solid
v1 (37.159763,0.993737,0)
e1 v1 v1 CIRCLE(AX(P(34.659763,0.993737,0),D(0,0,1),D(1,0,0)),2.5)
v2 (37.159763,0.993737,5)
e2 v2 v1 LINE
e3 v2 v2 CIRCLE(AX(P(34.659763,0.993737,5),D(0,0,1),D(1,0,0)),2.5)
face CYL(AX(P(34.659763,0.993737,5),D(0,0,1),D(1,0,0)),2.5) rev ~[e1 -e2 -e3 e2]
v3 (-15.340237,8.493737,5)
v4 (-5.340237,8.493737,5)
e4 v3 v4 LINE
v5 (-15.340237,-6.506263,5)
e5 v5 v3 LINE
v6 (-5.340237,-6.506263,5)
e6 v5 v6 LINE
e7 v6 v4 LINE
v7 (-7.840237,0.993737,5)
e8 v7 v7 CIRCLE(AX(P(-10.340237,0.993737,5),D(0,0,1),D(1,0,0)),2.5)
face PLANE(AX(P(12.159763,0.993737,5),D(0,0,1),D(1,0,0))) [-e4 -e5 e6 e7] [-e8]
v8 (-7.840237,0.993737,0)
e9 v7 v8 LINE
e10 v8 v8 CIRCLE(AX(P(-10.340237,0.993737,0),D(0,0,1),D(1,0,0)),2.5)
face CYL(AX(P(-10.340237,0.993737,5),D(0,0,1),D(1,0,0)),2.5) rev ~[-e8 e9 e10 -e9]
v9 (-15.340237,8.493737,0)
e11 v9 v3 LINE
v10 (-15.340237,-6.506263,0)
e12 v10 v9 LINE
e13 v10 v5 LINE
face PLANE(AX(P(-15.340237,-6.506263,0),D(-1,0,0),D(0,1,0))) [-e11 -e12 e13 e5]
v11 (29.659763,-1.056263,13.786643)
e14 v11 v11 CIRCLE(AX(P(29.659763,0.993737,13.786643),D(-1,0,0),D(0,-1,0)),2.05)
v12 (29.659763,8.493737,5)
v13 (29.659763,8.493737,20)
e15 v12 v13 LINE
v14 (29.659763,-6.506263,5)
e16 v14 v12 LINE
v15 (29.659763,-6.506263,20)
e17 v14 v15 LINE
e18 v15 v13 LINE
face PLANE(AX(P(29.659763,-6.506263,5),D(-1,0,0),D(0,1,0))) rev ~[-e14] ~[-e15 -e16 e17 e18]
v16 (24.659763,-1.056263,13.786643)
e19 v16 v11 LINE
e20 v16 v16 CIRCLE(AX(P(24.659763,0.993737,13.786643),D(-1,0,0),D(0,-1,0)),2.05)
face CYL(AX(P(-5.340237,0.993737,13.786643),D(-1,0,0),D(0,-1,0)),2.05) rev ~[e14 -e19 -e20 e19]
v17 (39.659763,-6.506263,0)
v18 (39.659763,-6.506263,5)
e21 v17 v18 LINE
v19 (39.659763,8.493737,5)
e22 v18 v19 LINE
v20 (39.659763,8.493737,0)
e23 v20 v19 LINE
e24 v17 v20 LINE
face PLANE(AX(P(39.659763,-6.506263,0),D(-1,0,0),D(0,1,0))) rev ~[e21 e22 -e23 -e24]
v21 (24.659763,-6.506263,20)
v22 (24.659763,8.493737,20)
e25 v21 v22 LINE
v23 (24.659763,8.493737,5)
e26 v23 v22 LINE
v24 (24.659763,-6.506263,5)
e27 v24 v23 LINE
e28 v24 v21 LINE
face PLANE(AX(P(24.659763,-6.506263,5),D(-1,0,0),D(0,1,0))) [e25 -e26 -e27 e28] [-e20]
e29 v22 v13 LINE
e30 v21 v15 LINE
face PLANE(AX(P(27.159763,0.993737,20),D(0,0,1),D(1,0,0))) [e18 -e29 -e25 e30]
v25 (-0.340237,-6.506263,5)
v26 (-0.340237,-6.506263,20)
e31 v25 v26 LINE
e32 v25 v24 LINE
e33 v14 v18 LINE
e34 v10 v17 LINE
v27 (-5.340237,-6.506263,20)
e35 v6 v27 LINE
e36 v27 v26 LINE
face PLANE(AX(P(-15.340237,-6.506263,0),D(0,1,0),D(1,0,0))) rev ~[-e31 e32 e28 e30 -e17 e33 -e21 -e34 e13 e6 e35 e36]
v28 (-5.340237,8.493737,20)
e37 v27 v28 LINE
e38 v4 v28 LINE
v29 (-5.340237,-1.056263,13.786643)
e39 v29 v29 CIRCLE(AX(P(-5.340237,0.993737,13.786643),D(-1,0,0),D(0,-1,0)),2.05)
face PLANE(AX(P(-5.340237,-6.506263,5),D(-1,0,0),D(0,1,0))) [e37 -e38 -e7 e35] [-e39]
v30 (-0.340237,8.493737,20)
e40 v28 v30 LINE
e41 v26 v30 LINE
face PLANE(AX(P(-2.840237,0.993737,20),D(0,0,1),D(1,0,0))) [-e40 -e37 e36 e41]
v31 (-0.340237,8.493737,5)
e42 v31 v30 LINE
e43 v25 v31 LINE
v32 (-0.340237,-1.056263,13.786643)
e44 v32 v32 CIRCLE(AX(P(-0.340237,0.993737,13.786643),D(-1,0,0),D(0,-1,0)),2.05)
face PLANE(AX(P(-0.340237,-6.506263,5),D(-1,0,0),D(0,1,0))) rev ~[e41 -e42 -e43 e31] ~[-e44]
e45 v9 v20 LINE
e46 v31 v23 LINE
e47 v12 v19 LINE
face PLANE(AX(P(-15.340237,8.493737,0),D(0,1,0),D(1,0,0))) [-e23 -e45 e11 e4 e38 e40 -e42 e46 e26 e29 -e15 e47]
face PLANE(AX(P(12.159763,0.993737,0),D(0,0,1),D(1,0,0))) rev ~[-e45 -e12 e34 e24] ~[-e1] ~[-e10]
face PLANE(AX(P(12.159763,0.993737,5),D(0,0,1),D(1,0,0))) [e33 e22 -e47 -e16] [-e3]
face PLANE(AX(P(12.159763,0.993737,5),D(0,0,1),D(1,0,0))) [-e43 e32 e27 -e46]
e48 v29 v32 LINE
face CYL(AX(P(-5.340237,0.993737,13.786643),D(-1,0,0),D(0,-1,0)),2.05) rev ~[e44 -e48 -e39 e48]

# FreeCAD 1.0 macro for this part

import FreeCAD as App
import Part
import Sketcher
Q = App.Units.Quantity


def add_polygon(sketch, points):
    """Adds a closed chain of lines whose ends are joined by coincident constraints."""
    first, n = sketch.GeometryCount, len(points)
    for a, b in zip(points, points[1:] + points[:1]):
        sketch.addGeometry(Part.LineSegment(App.Vector(*a, 0), App.Vector(*b, 0)), False)
    for i in range(n):
        sketch.addConstraint(Sketcher.Constraint("Coincident", first + i, 2, first + (i + 1) % n, 1))

doc = App.newDocument("Part")
body = doc.addObject("PartDesign::Body", "Body")

sketch1 = body.newObject("Sketcher::SketchObject", "Sketch")
sketch1.AttachmentSupport = (doc.getObject("XY_Plane"), [""])
sketch1.MapMode = "FlatFace"
add_polygon(sketch1, [(-15.340237, 8.493737), (-15.340237, -6.506263), (39.659763, -6.506263), (39.659763, 8.493737)])
sketch1.addConstraint([
    Sketcher.Constraint("Vertical", 0),
    Sketcher.Constraint("Horizontal", 1),
    Sketcher.Constraint("Vertical", 2),
    Sketcher.Constraint("Horizontal", 3),
    Sketcher.Constraint("DistanceX", 1, 1, 1, 2, Q("55 mm")),
    Sketcher.Constraint("DistanceY", 0, 2, 0, 1, Q("15 mm")),
    Sketcher.Constraint("DistanceX", 0, 2, -1, 1, Q("15.340237 mm")),
    Sketcher.Constraint("DistanceY", 0, 2, -1, 1, Q("6.506263 mm")),
])
pad1 = body.newObject("PartDesign::Pad", "Pad")
pad1.Profile = sketch1
pad1.Length = 5

sketch2 = body.newObject("Sketcher::SketchObject", "Sketch001")
sketch2.AttachmentSupport = (doc.getObject("XY_Plane"), [""])
sketch2.MapMode = "FlatFace"
sketch2.AttachmentOffset = App.Placement(App.Vector(0, 0, 5), App.Rotation())
add_polygon(sketch2, [(-5.340237, 8.493737), (-5.340237, -6.506263), (-0.340237, -6.506263), (-0.340237, 8.493737)])
add_polygon(sketch2, [(24.659763, 8.493737), (24.659763, -6.506263), (29.659763, -6.506263), (29.659763, 8.493737)])
sketch2.addConstraint([
    Sketcher.Constraint("Vertical", 0),
    Sketcher.Constraint("Horizontal", 1),
    Sketcher.Constraint("Vertical", 2),
    Sketcher.Constraint("Horizontal", 3),
    Sketcher.Constraint("Vertical", 4),
    Sketcher.Constraint("Horizontal", 5),
    Sketcher.Constraint("Vertical", 6),
    Sketcher.Constraint("Horizontal", 7),
    Sketcher.Constraint("Horizontal", 1, 2, 4, 2),
    Sketcher.Constraint("Horizontal", 3, 2, 6, 2),
    Sketcher.Constraint("Equal", 3, 5),
    Sketcher.Constraint("DistanceX", 1, 1, 1, 2, Q("5 mm")),
    Sketcher.Constraint("DistanceY", 0, 2, 0, 1, Q("15 mm")),
    Sketcher.Constraint("DistanceX", 1, 2, 4, 2, Q("25 mm")),
    Sketcher.Constraint("DistanceX", 0, 2, -1, 1, Q("5.340237 mm")),
    Sketcher.Constraint("DistanceY", 0, 2, -1, 1, Q("6.506263 mm")),
])
pad2 = body.newObject("PartDesign::Pad", "Pad001")
pad2.Profile = sketch2
pad2.Length = 15

sketch3 = body.newObject("Sketcher::SketchObject", "Sketch002")
sketch3.AttachmentSupport = (doc.getObject("XY_Plane"), [""])
sketch3.MapMode = "FlatFace"
sketch3.AttachmentOffset = App.Placement(App.Vector(0, 0, 5), App.Rotation())
sketch3.addGeometry(Part.Circle(App.Vector(-10.340237, 0.993737, 0), App.Vector(0, 0, 1), 2.5), False)
sketch3.addConstraint([
    Sketcher.Constraint("Diameter", 0, Q("5 mm")),
    Sketcher.Constraint("DistanceX", 0, 3, -1, 1, Q("10.340237 mm")),
    Sketcher.Constraint("DistanceY", -1, 1, 0, 3, Q("0.993737 mm")),
])
pocket1 = body.newObject("PartDesign::Pocket", "Pocket")
pocket1.Profile = sketch3
pocket1.Length = 25

sketch4 = body.newObject("Sketcher::SketchObject", "Sketch003")
sketch4.AttachmentSupport = (doc.getObject("XY_Plane"), [""])
sketch4.MapMode = "FlatFace"
sketch4.AttachmentOffset = App.Placement(App.Vector(0, 0, 5), App.Rotation())
sketch4.addGeometry(Part.Circle(App.Vector(34.659763, 0.993737, 0), App.Vector(0, 0, 1), 2.5), False)
sketch4.addConstraint([
    Sketcher.Constraint("Diameter", 0, Q("5 mm")),
    Sketcher.Constraint("DistanceX", -1, 1, 0, 3, Q("34.659763 mm")),
    Sketcher.Constraint("DistanceY", -1, 1, 0, 3, Q("0.993737 mm")),
])
pocket2 = body.newObject("PartDesign::Pocket", "Pocket001")
pocket2.Profile = sketch4
pocket2.Length = 25

sketch5 = body.newObject("Sketcher::SketchObject", "Sketch004")
sketch5.AttachmentSupport = (doc.getObject("YZ_Plane"), [""])
sketch5.MapMode = "FlatFace"
sketch5.AttachmentOffset = App.Placement(App.Vector(0, 0, -5.340237), App.Rotation())
sketch5.addGeometry(Part.Circle(App.Vector(0.993737, 13.786643, 0), App.Vector(0, 0, 1), 2.05), False)
sketch5.addConstraint([
    Sketcher.Constraint("Diameter", 0, Q("4.1 mm")),
    Sketcher.Constraint("DistanceX", -1, 1, 0, 3, Q("0.993737 mm")),
    Sketcher.Constraint("DistanceY", -1, 1, 0, 3, Q("13.786643 mm")),
])
pocket3 = body.newObject("PartDesign::Pocket", "Pocket002")
pocket3.Profile = sketch5
pocket3.Type = "ThroughAll"
pocket3.Reversed = True

doc.recompute()
